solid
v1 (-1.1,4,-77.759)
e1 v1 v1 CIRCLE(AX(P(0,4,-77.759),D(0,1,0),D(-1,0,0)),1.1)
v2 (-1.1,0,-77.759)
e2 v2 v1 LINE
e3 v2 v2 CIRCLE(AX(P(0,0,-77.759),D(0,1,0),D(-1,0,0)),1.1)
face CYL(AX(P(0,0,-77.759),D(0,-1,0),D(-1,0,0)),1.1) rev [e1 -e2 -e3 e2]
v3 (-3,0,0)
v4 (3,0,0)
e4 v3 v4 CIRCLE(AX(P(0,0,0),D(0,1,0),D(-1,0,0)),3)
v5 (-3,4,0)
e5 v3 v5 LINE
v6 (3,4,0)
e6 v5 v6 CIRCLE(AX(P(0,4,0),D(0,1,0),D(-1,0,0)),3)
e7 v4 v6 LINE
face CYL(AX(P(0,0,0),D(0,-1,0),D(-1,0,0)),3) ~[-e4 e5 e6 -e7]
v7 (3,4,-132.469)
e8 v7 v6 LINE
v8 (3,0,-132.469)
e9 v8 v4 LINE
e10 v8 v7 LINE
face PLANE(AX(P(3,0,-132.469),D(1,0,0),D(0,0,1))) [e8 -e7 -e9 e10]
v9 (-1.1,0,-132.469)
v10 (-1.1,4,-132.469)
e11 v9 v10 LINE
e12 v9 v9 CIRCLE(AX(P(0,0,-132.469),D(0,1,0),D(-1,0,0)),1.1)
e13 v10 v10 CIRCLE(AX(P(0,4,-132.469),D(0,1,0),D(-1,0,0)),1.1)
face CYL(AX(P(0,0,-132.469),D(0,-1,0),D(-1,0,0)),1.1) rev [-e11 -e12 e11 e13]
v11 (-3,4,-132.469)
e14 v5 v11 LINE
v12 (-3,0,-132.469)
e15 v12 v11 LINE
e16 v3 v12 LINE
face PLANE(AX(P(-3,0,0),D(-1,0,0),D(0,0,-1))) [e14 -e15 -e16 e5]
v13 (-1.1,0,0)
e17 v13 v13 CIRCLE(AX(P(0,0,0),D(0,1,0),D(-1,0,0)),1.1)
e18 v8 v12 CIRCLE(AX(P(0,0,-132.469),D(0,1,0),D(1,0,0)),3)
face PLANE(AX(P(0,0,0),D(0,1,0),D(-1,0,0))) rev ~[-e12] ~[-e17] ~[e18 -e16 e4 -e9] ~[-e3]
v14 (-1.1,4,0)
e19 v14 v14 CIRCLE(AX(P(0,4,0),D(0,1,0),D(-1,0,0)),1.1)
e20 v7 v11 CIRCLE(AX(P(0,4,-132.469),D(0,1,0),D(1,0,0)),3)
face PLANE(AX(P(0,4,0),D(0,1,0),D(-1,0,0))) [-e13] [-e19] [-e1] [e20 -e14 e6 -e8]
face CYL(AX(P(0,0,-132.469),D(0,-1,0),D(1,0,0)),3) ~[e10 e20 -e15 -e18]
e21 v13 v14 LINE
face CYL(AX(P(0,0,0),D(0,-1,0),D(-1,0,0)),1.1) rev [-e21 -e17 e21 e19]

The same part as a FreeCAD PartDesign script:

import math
import FreeCAD as App
import Part
import Sketcher
from FreeCAD import Vector

doc = App.newDocument("Part")
body = doc.addObject("PartDesign::Body", "Body")

# Sketch on XZ plane
sketch1 = body.newObject("Sketcher::SketchObject", "Sketch")
sketch1.AttachmentSupport = (doc.getObject("XZ_Plane"), [""])
sketch1.MapMode = "FlatFace"
sketch1.addGeometry([
    Part.LineSegment(Vector(-3, -132.5, 0), Vector(-3, 0, 0)),  # 0
    Part.ArcOfCircle(Part.Circle(Vector(0, 0, 0), Vector(0, 0, 1), 3), math.radians(0), math.radians(180)),  # 1
    Part.LineSegment(Vector(3, 0, 0), Vector(3, -132.5, 0)),  # 2
    Part.ArcOfCircle(Part.Circle(Vector(0, -132.5, 0), Vector(0, 0, 1), 3), math.radians(180), math.radians(360)),  # 3
    Part.Circle(Vector(0, -132.5, 0), Vector(0, 0, 1), 1.1),  # 4
    Part.Circle(Vector(0, -77.8, 0), Vector(0, 0, 1), 1.1),  # 5
    Part.Circle(Vector(0, 0, 0), Vector(0, 0, 1), 1.1),  # 6
], False)
sketch1.addConstraint([
    Sketcher.Constraint("Tangent", 0, 2, 1, 2),
    Sketcher.Constraint("Tangent", 1, 1, 2, 1),
    Sketcher.Constraint("Tangent", 2, 2, 3, 2),
    Sketcher.Constraint("Tangent", 3, 1, 0, 1),
    Sketcher.Constraint("Vertical", 0),
    Sketcher.Constraint("Vertical", 2),
    Sketcher.Constraint("Coincident", 1, 3, -1, 1),
    Sketcher.Constraint("Coincident", 6, 3, -1, 1),
    Sketcher.Constraint("Coincident", 4, 3, 3, 3),
    Sketcher.Constraint("Equal", 4, 5),
    Sketcher.Constraint("Equal", 5, 6),
    Sketcher.Constraint("PointOnObject", 5, 3, -2),
    Sketcher.Constraint("Radius", 1, 3.0),
    Sketcher.Constraint("Diameter", 4, 2.2),
    Sketcher.Constraint("DistanceY", 0, 1, 0, 2, 132.469),
    Sketcher.Constraint("DistanceY", 5, 3, -1, 1, 77.759),
])
pad1 = body.newObject("PartDesign::Pad", "Pad")
pad1.Profile = sketch1
pad1.Length = 4
pad1.Reversed = True

doc.recompute()
